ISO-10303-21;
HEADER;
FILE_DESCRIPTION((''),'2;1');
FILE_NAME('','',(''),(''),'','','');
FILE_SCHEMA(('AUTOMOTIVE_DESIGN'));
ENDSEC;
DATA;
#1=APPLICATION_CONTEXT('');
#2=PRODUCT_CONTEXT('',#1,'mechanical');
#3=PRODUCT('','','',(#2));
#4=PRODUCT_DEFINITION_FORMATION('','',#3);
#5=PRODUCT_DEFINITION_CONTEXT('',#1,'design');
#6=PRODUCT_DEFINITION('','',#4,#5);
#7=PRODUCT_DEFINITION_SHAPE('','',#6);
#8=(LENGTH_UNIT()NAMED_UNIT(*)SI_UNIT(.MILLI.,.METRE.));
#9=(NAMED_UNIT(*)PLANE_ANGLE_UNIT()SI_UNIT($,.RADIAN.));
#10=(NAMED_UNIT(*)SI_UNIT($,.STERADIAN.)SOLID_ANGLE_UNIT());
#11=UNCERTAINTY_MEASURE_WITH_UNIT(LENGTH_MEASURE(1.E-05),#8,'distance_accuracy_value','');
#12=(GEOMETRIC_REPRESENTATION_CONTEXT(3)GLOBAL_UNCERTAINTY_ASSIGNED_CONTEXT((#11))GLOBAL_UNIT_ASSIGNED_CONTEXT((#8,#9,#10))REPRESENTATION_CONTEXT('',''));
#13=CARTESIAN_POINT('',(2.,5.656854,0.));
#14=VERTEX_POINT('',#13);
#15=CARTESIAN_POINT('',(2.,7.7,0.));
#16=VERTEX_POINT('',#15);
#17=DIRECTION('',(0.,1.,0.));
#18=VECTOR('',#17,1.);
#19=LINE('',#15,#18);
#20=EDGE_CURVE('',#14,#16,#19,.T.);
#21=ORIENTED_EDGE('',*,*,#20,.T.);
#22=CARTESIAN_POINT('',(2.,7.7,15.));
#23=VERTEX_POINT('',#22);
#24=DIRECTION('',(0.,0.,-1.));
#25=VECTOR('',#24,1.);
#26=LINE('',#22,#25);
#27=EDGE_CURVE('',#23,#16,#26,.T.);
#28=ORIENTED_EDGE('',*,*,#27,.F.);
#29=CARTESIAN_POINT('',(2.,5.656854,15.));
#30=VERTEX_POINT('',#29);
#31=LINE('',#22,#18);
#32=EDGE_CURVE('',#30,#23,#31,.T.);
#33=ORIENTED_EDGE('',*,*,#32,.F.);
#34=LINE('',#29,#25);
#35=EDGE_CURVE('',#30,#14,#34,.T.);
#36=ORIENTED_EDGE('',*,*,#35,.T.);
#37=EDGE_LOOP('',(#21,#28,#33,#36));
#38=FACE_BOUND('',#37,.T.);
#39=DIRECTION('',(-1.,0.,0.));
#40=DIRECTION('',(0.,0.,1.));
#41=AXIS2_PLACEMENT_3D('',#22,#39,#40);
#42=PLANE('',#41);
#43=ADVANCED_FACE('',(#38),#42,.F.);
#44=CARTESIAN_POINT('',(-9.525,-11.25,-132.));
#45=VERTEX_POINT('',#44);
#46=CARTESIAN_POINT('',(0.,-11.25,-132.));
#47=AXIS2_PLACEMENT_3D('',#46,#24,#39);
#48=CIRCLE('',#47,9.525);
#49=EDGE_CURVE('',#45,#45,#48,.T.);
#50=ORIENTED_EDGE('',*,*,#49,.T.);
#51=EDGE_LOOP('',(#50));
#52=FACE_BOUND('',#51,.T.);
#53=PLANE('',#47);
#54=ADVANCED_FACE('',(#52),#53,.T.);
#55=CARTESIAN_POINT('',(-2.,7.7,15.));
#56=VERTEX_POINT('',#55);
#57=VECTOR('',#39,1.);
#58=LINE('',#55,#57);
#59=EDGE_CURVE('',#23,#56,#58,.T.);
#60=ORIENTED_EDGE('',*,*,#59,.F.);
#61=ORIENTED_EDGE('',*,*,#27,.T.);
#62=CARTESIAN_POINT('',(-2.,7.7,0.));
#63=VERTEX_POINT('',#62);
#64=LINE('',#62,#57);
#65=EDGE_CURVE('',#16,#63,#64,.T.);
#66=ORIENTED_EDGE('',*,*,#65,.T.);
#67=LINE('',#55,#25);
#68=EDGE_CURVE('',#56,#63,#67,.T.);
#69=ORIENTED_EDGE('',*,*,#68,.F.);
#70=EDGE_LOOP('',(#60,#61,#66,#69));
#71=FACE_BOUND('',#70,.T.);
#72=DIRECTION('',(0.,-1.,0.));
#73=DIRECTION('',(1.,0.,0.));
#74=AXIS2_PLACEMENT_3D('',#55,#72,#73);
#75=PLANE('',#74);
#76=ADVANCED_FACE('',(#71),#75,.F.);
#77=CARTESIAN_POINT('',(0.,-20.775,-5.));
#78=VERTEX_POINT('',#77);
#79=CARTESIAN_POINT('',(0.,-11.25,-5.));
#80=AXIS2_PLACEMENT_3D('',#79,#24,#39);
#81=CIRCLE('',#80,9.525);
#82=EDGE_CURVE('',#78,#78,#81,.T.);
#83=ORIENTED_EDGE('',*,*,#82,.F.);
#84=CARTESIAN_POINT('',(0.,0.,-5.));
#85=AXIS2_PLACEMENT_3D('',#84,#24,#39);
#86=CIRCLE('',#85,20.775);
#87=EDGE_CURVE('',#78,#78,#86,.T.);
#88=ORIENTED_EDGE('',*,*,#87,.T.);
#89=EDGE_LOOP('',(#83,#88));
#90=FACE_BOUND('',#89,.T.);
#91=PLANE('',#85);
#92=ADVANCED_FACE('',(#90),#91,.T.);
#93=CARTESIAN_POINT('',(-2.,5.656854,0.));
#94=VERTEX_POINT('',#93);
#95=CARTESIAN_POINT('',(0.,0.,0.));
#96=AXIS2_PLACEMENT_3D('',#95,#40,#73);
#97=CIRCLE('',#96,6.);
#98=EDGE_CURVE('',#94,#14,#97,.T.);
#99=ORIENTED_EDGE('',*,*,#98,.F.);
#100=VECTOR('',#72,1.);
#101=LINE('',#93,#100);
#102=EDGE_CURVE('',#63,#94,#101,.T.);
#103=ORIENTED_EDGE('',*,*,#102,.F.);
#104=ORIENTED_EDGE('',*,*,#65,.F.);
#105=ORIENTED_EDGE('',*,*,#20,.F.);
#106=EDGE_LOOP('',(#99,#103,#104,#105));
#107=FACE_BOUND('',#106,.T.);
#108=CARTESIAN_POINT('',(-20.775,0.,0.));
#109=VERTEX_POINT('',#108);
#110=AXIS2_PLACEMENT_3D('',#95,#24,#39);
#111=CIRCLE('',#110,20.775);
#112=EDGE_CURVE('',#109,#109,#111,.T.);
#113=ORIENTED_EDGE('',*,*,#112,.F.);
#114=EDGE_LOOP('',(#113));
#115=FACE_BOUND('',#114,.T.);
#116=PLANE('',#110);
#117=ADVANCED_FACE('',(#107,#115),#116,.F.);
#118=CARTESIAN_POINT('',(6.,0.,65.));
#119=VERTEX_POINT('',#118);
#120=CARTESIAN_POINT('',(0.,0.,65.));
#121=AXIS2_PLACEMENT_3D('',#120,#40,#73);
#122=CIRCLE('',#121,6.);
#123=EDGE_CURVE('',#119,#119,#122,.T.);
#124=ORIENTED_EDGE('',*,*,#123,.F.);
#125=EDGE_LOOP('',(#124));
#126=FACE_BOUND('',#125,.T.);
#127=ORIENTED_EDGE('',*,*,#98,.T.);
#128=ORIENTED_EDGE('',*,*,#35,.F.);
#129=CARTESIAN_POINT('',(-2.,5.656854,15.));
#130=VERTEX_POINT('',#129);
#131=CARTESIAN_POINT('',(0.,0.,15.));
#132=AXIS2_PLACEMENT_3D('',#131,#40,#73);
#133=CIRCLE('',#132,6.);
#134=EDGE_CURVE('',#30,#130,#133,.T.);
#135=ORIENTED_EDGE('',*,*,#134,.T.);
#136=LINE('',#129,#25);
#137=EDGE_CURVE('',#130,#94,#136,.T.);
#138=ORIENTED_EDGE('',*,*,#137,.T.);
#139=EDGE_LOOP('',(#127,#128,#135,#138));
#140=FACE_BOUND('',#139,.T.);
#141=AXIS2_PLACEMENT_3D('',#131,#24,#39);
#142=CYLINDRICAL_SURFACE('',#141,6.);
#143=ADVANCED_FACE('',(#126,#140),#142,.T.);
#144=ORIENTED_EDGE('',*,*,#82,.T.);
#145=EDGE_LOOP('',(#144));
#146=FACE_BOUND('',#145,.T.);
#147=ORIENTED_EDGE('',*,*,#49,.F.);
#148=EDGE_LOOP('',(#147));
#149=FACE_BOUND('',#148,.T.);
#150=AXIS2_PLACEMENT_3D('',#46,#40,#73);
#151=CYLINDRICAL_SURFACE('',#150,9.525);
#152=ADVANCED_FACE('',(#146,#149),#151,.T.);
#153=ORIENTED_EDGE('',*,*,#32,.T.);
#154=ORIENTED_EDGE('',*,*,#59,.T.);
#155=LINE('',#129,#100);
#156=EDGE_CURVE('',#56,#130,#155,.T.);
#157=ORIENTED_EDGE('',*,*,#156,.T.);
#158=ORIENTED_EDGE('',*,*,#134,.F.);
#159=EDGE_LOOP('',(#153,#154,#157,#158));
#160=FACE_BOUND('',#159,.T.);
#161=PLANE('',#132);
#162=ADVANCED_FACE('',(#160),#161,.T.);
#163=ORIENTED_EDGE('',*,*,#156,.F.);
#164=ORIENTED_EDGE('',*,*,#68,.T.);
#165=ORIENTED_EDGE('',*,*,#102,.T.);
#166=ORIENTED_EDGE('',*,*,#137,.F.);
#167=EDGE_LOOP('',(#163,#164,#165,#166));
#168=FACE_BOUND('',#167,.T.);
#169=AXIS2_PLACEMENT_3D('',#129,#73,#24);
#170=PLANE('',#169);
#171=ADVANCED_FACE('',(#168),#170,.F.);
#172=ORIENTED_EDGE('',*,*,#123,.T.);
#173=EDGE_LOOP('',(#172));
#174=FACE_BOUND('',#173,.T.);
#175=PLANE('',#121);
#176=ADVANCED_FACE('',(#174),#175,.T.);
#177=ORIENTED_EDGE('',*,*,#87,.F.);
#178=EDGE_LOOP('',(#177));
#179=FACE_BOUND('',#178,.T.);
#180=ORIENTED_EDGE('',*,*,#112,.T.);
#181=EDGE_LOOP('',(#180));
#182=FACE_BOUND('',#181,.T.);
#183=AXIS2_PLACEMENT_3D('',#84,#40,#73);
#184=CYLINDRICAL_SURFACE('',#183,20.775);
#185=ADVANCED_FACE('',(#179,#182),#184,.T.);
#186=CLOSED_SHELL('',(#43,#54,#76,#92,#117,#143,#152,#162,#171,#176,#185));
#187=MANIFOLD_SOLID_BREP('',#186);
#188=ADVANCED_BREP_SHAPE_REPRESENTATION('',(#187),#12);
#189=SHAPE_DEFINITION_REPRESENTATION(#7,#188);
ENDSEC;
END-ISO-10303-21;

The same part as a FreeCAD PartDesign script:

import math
import FreeCAD as App
import Part
import Sketcher
from FreeCAD import Vector

doc = App.newDocument("Part")
body = doc.addObject("PartDesign::Body", "Body")

sketch1 = body.newObject("Sketcher::SketchObject", "Sketch")
sketch1.AttachmentSupport = (doc.getObject("XY_Plane"), [""])
sketch1.MapMode = "FlatFace"
sketch1.addGeometry([
    Part.LineSegment(Vector(2, 7.7, 0), Vector(-2, 7.7, 0)),
    Part.LineSegment(Vector(-2, 7.7, 0), Vector(-2, 5.7, 0)),
    Part.ArcOfCircle(Part.Circle(Vector(0, 0, 0), Vector(0, 0, 1), 6), math.radians(109), math.radians(431)),
    Part.LineSegment(Vector(2, 5.7, 0), Vector(2, 7.7, 0)),
], False)
sketch1.addConstraint([
    Sketcher.Constraint("Coincident", 0, 2, 1, 1),
    Sketcher.Constraint("Coincident", 1, 2, 2, 1),
    Sketcher.Constraint("Coincident", 2, 2, 3, 1),
    Sketcher.Constraint("Coincident", 3, 2, 0, 1),
    Sketcher.Constraint("Horizontal", 0),
    Sketcher.Constraint("Vertical", 1),
    Sketcher.Constraint("Vertical", 3),
    Sketcher.Constraint("Coincident", 2, 3, -1, 1),
    Sketcher.Constraint("Horizontal", 1, 2, 2, 2),
    Sketcher.Constraint("Radius", 2, 6.0),
    Sketcher.Constraint("DistanceX", 0, 2, 0, 1, 4.0),
    Sketcher.Constraint("DistanceY", -1, 1, 0, 2, 7.7),
])
pad1 = body.newObject("PartDesign::Pad", "Pad")
pad1.Profile = sketch1
pad1.Length = 15

sketch2 = body.newObject("Sketcher::SketchObject", "Sketch001")
sketch2.AttachmentSupport = (doc.getObject("XY_Plane"), [""])
sketch2.MapMode = "FlatFace"
sketch2.addGeometry(Part.Circle(Vector(0, 0, 0), Vector(0, 0, 1), 21), False)
sketch2.addConstraint([
    Sketcher.Constraint("Coincident", 0, 3, -1, 1),
    Sketcher.Constraint("Diameter", 0, 41.55),
])
pad2 = body.newObject("PartDesign::Pad", "Pad001")
pad2.Profile = sketch2
pad2.Length = 5
pad2.Reversed = True

sketch3 = body.newObject("Sketcher::SketchObject", "Sketch002")
sketch3.AttachmentSupport = (doc.getObject("XY_Plane"), [""])
sketch3.MapMode = "FlatFace"
sketch3.AttachmentOffset = App.Placement(Vector(0, 0, -5), App.Rotation())
sketch3.addGeometry(Part.Circle(Vector(0, -11, 0), Vector(0, 0, 1), 10), False)
sketch3.addConstraint([
    Sketcher.Constraint("PointOnObject", 0, 3, -2),
    Sketcher.Constraint("Diameter", 0, 19.05),
    Sketcher.Constraint("DistanceY", 0, 3, -1, 1, 11.25),
])
pad3 = body.newObject("PartDesign::Pad", "Pad002")
pad3.Profile = sketch3
pad3.Length = 127
pad3.Reversed = True

sketch4 = body.newObject("Sketcher::SketchObject", "Sketch003")
sketch4.AttachmentSupport = (doc.getObject("XY_Plane"), [""])
sketch4.MapMode = "FlatFace"
sketch4.AttachmentOffset = App.Placement(Vector(0, 0, 15), App.Rotation())
sketch4.addGeometry(Part.Circle(Vector(0, 0, 0), Vector(0, 0, 1), 6), False)
sketch4.addConstraint([
    Sketcher.Constraint("Coincident", 0, 3, -1, 1),
    Sketcher.Constraint("Diameter", 0, 12.0),
])
pad4 = body.newObject("PartDesign::Pad", "Pad003")
pad4.Profile = sketch4
pad4.Length = 50

doc.recompute()
